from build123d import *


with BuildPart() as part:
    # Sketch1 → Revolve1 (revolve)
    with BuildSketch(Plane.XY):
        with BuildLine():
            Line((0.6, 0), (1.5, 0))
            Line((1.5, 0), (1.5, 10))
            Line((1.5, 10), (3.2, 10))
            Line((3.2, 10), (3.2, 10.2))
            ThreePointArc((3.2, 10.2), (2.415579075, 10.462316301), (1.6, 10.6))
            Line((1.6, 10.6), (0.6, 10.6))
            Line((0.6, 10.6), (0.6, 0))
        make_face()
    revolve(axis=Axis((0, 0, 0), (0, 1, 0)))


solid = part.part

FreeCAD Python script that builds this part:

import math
import FreeCAD as App
import Part
import Sketcher

doc = App.newDocument("Part")
params = doc.addObject("Spreadsheet::Sheet", "Params")
for row, (alias, value) in enumerate([
    ("sketch1_width", "1 mm"),
    ("sketch1_height", "10 mm"),
    ("sketch1_width2", "0.9 mm"),
    ("sketch1_width3", "1.7 mm"),
    ("sketch1_height2", "0.2 mm"),
    ("revolution_angle", "360 deg"),
], start=1):
    params.set(f"A{row}", alias)
    params.set(f"B{row}", "=" + value)
    params.setAlias(f"B{row}", alias)

body = doc.addObject("PartDesign::Body", "Body")

sketch1 = doc.addObject("Sketcher::SketchObject", "Sketch")
body.addObject(sketch1)
sketch1.AttachmentSupport = (doc.XY_Plane, [""])
sketch1.MapMode = "FlatFace"
sketch1.addGeometry([
    Part.LineSegment(App.Vector(0.6, 0, 0), App.Vector(1.5, 0, 0)),
    Part.LineSegment(App.Vector(1.5, 0, 0), App.Vector(1.5, 10, 0)),
    Part.LineSegment(App.Vector(1.5, 10, 0), App.Vector(3.2, 10, 0)),
    Part.LineSegment(App.Vector(3.2, 10, 0), App.Vector(3.2, 10.2, 0)),
    Part.ArcOfCircle(Part.Circle(App.Vector(1.124016, 5.296065, 0), App.Vector(0, 0, 1), 5.32525), math.radians(67.055592), math.radians(84.871921)),
    Part.LineSegment(App.Vector(1.6, 10.6, 0), App.Vector(0.6, 10.6, 0)),
    Part.LineSegment(App.Vector(0.6, 10.6, 0), App.Vector(0.6, 0, 0)),
], False)
sketch1.addConstraint([
    Sketcher.Constraint("Coincident", 0, 2, 1, 1),
    Sketcher.Constraint("Coincident", 1, 2, 2, 1),
    Sketcher.Constraint("Coincident", 2, 2, 3, 1),
    Sketcher.Constraint("Coincident", 3, 2, 4, 1),
    Sketcher.Constraint("Coincident", 4, 2, 5, 1),
    Sketcher.Constraint("Coincident", 5, 2, 6, 1),
    Sketcher.Constraint("Coincident", 6, 2, 0, 1),
    Sketcher.Constraint("Horizontal", 0),
    Sketcher.Constraint("Vertical", 1),
    Sketcher.Constraint("Horizontal", 2),
    Sketcher.Constraint("Vertical", 3),
    Sketcher.Constraint("Horizontal", 5),
    Sketcher.Constraint("Vertical", 6),
    Sketcher.Constraint("PointOnObject", 0, 2, -1),
    Sketcher.Constraint("DistanceX", 5, 2, 5, 1, 1.0),
    Sketcher.Constraint("DistanceY", 1, 1, 1, 2, 10.0),
    Sketcher.Constraint("DistanceX", 0, 1, 0, 2, 0.9),
    Sketcher.Constraint("DistanceX", 2, 1, 2, 2, 1.7),
    Sketcher.Constraint("DistanceY", 3, 1, 3, 2, 0.2),
    Sketcher.Constraint("DistanceY", 6, 2, 6, 1, 10.6),
    Sketcher.Constraint("DistanceX", -1, 1, 0, 2, 1.5),
    Sketcher.Constraint("Radius", 4, 5.32525),
])
sketch1.setExpression("Constraints[14]", "Params.sketch1_width")
sketch1.setExpression("Constraints[15]", "Params.sketch1_height")
sketch1.setExpression("Constraints[16]", "Params.sketch1_width2")
sketch1.setExpression("Constraints[17]", "Params.sketch1_width3")
sketch1.setExpression("Constraints[18]", "Params.sketch1_height2")
revolution = doc.addObject("PartDesign::Revolution", "Revolution")
body.addObject(revolution)
revolution.Profile = sketch1
revolution.ReferenceAxis = (sketch1, ["V_Axis"])
revolution.setExpression("Angle", "Params.revolution_angle")

doc.recompute()
